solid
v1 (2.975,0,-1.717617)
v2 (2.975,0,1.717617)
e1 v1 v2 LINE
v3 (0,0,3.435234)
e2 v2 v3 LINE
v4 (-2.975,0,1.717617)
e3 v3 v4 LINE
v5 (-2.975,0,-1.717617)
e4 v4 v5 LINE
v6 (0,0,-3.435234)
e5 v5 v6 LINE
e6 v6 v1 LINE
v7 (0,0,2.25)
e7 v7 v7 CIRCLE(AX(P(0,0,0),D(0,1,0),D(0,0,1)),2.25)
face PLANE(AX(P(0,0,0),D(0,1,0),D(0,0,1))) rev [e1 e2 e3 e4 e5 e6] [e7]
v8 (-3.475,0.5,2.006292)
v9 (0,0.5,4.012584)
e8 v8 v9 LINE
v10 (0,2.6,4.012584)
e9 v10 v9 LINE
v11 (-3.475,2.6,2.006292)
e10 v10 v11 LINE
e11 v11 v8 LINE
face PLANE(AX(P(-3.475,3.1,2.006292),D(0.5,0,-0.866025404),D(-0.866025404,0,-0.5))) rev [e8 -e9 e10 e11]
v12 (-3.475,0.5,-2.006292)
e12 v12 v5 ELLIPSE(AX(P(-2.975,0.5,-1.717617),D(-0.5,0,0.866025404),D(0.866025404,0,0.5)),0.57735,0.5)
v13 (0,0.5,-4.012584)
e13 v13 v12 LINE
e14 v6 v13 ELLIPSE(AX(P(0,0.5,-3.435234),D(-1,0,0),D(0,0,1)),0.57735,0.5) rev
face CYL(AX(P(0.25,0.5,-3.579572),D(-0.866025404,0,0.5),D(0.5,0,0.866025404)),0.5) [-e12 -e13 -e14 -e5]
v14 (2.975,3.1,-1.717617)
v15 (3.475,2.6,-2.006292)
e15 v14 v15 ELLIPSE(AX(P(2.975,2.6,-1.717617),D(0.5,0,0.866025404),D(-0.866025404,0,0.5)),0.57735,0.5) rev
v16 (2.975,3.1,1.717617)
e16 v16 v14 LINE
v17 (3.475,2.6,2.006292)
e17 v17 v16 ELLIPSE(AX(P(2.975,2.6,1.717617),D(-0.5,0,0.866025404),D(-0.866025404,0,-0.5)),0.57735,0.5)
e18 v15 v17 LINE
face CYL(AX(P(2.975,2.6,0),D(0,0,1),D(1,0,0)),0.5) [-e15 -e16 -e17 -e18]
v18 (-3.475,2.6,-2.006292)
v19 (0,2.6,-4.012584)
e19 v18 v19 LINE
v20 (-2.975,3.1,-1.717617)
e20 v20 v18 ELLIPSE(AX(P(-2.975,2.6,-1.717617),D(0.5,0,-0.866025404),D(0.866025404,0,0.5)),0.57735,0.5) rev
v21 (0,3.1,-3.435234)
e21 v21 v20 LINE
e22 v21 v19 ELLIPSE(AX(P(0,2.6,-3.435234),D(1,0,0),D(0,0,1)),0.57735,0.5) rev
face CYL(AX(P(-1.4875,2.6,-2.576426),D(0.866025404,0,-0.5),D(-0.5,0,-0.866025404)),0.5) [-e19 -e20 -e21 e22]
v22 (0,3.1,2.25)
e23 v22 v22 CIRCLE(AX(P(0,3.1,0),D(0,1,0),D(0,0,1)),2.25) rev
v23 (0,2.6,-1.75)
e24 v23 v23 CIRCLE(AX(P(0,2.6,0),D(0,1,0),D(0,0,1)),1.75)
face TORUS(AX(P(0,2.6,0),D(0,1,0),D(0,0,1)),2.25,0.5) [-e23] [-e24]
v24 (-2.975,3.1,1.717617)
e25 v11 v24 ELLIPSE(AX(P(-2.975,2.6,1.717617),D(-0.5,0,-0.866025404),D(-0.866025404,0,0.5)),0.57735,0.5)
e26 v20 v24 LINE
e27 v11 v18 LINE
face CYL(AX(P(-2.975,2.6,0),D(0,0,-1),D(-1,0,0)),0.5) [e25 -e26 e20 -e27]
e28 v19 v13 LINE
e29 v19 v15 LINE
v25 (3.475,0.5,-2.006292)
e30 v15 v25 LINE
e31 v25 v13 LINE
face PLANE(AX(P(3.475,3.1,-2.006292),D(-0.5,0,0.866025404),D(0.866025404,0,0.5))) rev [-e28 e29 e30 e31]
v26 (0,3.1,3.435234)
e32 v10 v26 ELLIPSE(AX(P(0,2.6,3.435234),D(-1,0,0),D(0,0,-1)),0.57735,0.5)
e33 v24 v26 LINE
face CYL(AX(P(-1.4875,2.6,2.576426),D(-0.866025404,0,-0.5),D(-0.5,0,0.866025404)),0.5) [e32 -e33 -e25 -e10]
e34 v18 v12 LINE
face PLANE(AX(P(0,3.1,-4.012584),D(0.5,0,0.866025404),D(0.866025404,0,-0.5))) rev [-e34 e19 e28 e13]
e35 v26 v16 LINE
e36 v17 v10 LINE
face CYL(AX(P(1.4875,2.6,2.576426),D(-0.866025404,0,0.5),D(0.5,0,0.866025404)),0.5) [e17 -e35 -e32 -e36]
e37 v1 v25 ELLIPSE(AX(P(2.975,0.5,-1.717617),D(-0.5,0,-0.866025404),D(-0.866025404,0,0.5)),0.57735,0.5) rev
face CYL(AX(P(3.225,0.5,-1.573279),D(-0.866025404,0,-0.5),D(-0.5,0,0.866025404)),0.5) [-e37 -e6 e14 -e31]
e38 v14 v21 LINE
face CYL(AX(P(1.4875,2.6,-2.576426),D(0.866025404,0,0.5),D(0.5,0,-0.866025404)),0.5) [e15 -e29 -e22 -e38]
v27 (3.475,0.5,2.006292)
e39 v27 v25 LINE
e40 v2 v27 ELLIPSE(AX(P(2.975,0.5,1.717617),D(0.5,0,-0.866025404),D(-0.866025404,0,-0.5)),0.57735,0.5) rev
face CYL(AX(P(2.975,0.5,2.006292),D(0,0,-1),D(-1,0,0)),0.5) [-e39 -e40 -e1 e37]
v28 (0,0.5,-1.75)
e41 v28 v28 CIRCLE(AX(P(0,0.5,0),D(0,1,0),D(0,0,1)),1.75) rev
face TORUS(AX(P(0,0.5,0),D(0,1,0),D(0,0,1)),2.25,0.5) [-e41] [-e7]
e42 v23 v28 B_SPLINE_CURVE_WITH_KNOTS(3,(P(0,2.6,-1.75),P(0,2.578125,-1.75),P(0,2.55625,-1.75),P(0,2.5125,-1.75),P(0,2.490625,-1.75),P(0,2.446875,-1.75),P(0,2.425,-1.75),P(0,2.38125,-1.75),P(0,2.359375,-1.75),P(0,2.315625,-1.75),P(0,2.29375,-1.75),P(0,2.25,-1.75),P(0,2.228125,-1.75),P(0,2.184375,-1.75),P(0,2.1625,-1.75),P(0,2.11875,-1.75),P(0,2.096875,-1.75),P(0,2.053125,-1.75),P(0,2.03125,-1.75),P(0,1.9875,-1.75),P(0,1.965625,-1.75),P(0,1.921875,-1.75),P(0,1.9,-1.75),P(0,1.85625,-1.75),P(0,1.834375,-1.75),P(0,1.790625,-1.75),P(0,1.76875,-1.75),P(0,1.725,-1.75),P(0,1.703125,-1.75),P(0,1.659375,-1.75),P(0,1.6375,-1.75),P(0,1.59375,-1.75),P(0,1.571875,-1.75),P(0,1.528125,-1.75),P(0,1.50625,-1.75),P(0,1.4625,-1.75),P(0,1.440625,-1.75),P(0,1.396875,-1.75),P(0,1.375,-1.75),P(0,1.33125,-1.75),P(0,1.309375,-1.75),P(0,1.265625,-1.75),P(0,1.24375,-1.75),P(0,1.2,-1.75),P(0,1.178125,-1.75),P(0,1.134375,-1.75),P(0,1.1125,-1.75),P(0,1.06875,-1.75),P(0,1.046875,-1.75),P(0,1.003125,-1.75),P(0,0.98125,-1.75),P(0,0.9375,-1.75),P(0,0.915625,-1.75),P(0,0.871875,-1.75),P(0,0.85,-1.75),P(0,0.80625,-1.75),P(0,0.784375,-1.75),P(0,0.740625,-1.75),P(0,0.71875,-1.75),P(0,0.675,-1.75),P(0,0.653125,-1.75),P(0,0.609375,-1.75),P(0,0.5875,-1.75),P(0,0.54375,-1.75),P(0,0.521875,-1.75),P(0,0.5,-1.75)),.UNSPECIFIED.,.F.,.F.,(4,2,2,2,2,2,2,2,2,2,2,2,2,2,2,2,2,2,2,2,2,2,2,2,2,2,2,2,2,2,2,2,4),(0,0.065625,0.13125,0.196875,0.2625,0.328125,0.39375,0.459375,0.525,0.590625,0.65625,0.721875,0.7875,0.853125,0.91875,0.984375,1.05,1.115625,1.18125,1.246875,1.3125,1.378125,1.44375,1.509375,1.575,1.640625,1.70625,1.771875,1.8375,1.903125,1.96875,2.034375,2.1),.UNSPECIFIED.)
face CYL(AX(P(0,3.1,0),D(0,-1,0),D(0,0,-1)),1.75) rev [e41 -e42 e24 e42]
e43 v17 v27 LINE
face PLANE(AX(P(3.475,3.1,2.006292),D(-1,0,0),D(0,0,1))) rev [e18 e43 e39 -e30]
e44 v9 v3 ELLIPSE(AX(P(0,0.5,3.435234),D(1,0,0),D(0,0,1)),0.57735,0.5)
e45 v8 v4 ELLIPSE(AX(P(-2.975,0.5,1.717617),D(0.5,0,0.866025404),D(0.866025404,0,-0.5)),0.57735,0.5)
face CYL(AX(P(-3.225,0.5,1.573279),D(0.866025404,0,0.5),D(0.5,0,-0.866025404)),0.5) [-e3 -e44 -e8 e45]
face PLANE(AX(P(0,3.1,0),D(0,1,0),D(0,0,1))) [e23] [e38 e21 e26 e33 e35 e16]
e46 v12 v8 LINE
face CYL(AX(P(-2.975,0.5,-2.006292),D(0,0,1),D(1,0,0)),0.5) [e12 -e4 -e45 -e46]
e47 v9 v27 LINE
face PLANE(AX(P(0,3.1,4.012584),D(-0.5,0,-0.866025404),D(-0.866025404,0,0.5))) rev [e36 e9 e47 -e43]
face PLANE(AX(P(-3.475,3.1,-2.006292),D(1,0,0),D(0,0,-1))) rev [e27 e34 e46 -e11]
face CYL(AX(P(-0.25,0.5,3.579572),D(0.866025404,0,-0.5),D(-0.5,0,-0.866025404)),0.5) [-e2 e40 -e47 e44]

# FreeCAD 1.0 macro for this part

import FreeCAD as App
import Part
import Sketcher
Q = App.Units.Quantity


def edges_at(feature, points):
    """Names of the edges that pass closest to the given points."""
    edges = feature.Shape.Edges
    near = lambda p: min(range(len(edges)), key=lambda i: edges[i].distToShape(Part.Vertex(*p))[0])
    return sorted({f"Edge{near(p) + 1}" for p in points})

doc = App.newDocument("Part")
body = doc.addObject("PartDesign::Body", "Body")

# Sketch on XZ plane
sketch1 = body.newObject("Sketcher::SketchObject", "Sketch")
sketch1.AttachmentSupport = (doc.getObject("XZ_Plane"), [""])
sketch1.MapMode = "FlatFace"
sketch1.addGeometry(Part.LineSegment(App.Vector(0, 4, 0), App.Vector(3.5, 2, 0)), False)
sketch1.addGeometry(Part.LineSegment(App.Vector(3.5, 2, 0), App.Vector(3.5, -2, 0)), False)
sketch1.addGeometry(Part.LineSegment(App.Vector(3.5, -2, 0), App.Vector(0, -4, 0)), False)
sketch1.addGeometry(Part.LineSegment(App.Vector(0, -4, 0), App.Vector(-3.5, -2, 0)), False)
sketch1.addGeometry(Part.LineSegment(App.Vector(-3.5, -2, 0), App.Vector(-3.5, 2, 0)), False)
sketch1.addGeometry(Part.LineSegment(App.Vector(-3.5, 2, 0), App.Vector(0, 4, 0)), False)
sketch1.addGeometry(Part.Circle(App.Vector(0, 0, 0), App.Vector(0, 0, 1), 1.8), False)
sketch1.addConstraint(Sketcher.Constraint("Coincident", 0, 2, 1, 1))
sketch1.addConstraint(Sketcher.Constraint("Coincident", 1, 2, 2, 1))
sketch1.addConstraint(Sketcher.Constraint("Coincident", 2, 2, 3, 1))
sketch1.addConstraint(Sketcher.Constraint("Coincident", 3, 2, 4, 1))
sketch1.addConstraint(Sketcher.Constraint("Coincident", 4, 2, 5, 1))
sketch1.addConstraint(Sketcher.Constraint("Coincident", 5, 2, 0, 1))
sketch1.addConstraint(Sketcher.Constraint("Vertical", 1))
sketch1.addConstraint(Sketcher.Constraint("Vertical", 4))
sketch1.addConstraint(Sketcher.Constraint("Coincident", 6, 3, -1, 1))
sketch1.addConstraint(Sketcher.Constraint("Symmetric", 0, 2, 3, 2, -1, 1))
sketch1.addConstraint(Sketcher.Constraint("Symmetric", 2, 2, 5, 2, -1, 1))
sketch1.addConstraint(Sketcher.Constraint("PointOnObject", 2, 2, -2))
sketch1.addConstraint(Sketcher.Constraint("Parallel", 2, 5))
sketch1.addConstraint(Sketcher.Constraint("Horizontal", 1, 2, 3, 2))
sketch1.addConstraint(Sketcher.Constraint("Diameter", 6, Q("3.5 mm")))
sketch1.addConstraint(Sketcher.Constraint("Angle", 0, Q("-30 deg")))
sketch1.addConstraint(Sketcher.Constraint("DistanceX", 3, 2, 1, 2, Q("6.95 mm")))
sketch1.addConstraint(Sketcher.Constraint("DistanceY", 1, 2, 1, 1, Q("4.012584 mm")))
pad1 = body.newObject("PartDesign::Pad", "Pad")
pad1.Profile = sketch1
pad1.Length = 3.1
pad1.Reversed = True
doc.recompute()

fillet = body.newObject("PartDesign::Fillet", "Fillet")
fillet.Base = (pad1, edges_at(pad1, [
    (3.475, 3.1, 0),
    (1.738, 3.1, -3.009),
    (-1.738, 3.1, -3.009),
    (0, 0, 1.75),
    (0, 3.1, 1.75),
    (-3.475, 3.1, 0),
    (-1.738, 3.1, 3.009),
    (-3.475, 0, 0),
    (-1.738, 0, -3.009),
    (1.738, 0, -3.009),
    (1.738, 3.1, 3.009),
    (3.475, 0, 0),
    (1.738, 0, 3.009),
    (-1.738, 0, 3.009),
]))
fillet.Radius = 0.5

doc.recompute()
